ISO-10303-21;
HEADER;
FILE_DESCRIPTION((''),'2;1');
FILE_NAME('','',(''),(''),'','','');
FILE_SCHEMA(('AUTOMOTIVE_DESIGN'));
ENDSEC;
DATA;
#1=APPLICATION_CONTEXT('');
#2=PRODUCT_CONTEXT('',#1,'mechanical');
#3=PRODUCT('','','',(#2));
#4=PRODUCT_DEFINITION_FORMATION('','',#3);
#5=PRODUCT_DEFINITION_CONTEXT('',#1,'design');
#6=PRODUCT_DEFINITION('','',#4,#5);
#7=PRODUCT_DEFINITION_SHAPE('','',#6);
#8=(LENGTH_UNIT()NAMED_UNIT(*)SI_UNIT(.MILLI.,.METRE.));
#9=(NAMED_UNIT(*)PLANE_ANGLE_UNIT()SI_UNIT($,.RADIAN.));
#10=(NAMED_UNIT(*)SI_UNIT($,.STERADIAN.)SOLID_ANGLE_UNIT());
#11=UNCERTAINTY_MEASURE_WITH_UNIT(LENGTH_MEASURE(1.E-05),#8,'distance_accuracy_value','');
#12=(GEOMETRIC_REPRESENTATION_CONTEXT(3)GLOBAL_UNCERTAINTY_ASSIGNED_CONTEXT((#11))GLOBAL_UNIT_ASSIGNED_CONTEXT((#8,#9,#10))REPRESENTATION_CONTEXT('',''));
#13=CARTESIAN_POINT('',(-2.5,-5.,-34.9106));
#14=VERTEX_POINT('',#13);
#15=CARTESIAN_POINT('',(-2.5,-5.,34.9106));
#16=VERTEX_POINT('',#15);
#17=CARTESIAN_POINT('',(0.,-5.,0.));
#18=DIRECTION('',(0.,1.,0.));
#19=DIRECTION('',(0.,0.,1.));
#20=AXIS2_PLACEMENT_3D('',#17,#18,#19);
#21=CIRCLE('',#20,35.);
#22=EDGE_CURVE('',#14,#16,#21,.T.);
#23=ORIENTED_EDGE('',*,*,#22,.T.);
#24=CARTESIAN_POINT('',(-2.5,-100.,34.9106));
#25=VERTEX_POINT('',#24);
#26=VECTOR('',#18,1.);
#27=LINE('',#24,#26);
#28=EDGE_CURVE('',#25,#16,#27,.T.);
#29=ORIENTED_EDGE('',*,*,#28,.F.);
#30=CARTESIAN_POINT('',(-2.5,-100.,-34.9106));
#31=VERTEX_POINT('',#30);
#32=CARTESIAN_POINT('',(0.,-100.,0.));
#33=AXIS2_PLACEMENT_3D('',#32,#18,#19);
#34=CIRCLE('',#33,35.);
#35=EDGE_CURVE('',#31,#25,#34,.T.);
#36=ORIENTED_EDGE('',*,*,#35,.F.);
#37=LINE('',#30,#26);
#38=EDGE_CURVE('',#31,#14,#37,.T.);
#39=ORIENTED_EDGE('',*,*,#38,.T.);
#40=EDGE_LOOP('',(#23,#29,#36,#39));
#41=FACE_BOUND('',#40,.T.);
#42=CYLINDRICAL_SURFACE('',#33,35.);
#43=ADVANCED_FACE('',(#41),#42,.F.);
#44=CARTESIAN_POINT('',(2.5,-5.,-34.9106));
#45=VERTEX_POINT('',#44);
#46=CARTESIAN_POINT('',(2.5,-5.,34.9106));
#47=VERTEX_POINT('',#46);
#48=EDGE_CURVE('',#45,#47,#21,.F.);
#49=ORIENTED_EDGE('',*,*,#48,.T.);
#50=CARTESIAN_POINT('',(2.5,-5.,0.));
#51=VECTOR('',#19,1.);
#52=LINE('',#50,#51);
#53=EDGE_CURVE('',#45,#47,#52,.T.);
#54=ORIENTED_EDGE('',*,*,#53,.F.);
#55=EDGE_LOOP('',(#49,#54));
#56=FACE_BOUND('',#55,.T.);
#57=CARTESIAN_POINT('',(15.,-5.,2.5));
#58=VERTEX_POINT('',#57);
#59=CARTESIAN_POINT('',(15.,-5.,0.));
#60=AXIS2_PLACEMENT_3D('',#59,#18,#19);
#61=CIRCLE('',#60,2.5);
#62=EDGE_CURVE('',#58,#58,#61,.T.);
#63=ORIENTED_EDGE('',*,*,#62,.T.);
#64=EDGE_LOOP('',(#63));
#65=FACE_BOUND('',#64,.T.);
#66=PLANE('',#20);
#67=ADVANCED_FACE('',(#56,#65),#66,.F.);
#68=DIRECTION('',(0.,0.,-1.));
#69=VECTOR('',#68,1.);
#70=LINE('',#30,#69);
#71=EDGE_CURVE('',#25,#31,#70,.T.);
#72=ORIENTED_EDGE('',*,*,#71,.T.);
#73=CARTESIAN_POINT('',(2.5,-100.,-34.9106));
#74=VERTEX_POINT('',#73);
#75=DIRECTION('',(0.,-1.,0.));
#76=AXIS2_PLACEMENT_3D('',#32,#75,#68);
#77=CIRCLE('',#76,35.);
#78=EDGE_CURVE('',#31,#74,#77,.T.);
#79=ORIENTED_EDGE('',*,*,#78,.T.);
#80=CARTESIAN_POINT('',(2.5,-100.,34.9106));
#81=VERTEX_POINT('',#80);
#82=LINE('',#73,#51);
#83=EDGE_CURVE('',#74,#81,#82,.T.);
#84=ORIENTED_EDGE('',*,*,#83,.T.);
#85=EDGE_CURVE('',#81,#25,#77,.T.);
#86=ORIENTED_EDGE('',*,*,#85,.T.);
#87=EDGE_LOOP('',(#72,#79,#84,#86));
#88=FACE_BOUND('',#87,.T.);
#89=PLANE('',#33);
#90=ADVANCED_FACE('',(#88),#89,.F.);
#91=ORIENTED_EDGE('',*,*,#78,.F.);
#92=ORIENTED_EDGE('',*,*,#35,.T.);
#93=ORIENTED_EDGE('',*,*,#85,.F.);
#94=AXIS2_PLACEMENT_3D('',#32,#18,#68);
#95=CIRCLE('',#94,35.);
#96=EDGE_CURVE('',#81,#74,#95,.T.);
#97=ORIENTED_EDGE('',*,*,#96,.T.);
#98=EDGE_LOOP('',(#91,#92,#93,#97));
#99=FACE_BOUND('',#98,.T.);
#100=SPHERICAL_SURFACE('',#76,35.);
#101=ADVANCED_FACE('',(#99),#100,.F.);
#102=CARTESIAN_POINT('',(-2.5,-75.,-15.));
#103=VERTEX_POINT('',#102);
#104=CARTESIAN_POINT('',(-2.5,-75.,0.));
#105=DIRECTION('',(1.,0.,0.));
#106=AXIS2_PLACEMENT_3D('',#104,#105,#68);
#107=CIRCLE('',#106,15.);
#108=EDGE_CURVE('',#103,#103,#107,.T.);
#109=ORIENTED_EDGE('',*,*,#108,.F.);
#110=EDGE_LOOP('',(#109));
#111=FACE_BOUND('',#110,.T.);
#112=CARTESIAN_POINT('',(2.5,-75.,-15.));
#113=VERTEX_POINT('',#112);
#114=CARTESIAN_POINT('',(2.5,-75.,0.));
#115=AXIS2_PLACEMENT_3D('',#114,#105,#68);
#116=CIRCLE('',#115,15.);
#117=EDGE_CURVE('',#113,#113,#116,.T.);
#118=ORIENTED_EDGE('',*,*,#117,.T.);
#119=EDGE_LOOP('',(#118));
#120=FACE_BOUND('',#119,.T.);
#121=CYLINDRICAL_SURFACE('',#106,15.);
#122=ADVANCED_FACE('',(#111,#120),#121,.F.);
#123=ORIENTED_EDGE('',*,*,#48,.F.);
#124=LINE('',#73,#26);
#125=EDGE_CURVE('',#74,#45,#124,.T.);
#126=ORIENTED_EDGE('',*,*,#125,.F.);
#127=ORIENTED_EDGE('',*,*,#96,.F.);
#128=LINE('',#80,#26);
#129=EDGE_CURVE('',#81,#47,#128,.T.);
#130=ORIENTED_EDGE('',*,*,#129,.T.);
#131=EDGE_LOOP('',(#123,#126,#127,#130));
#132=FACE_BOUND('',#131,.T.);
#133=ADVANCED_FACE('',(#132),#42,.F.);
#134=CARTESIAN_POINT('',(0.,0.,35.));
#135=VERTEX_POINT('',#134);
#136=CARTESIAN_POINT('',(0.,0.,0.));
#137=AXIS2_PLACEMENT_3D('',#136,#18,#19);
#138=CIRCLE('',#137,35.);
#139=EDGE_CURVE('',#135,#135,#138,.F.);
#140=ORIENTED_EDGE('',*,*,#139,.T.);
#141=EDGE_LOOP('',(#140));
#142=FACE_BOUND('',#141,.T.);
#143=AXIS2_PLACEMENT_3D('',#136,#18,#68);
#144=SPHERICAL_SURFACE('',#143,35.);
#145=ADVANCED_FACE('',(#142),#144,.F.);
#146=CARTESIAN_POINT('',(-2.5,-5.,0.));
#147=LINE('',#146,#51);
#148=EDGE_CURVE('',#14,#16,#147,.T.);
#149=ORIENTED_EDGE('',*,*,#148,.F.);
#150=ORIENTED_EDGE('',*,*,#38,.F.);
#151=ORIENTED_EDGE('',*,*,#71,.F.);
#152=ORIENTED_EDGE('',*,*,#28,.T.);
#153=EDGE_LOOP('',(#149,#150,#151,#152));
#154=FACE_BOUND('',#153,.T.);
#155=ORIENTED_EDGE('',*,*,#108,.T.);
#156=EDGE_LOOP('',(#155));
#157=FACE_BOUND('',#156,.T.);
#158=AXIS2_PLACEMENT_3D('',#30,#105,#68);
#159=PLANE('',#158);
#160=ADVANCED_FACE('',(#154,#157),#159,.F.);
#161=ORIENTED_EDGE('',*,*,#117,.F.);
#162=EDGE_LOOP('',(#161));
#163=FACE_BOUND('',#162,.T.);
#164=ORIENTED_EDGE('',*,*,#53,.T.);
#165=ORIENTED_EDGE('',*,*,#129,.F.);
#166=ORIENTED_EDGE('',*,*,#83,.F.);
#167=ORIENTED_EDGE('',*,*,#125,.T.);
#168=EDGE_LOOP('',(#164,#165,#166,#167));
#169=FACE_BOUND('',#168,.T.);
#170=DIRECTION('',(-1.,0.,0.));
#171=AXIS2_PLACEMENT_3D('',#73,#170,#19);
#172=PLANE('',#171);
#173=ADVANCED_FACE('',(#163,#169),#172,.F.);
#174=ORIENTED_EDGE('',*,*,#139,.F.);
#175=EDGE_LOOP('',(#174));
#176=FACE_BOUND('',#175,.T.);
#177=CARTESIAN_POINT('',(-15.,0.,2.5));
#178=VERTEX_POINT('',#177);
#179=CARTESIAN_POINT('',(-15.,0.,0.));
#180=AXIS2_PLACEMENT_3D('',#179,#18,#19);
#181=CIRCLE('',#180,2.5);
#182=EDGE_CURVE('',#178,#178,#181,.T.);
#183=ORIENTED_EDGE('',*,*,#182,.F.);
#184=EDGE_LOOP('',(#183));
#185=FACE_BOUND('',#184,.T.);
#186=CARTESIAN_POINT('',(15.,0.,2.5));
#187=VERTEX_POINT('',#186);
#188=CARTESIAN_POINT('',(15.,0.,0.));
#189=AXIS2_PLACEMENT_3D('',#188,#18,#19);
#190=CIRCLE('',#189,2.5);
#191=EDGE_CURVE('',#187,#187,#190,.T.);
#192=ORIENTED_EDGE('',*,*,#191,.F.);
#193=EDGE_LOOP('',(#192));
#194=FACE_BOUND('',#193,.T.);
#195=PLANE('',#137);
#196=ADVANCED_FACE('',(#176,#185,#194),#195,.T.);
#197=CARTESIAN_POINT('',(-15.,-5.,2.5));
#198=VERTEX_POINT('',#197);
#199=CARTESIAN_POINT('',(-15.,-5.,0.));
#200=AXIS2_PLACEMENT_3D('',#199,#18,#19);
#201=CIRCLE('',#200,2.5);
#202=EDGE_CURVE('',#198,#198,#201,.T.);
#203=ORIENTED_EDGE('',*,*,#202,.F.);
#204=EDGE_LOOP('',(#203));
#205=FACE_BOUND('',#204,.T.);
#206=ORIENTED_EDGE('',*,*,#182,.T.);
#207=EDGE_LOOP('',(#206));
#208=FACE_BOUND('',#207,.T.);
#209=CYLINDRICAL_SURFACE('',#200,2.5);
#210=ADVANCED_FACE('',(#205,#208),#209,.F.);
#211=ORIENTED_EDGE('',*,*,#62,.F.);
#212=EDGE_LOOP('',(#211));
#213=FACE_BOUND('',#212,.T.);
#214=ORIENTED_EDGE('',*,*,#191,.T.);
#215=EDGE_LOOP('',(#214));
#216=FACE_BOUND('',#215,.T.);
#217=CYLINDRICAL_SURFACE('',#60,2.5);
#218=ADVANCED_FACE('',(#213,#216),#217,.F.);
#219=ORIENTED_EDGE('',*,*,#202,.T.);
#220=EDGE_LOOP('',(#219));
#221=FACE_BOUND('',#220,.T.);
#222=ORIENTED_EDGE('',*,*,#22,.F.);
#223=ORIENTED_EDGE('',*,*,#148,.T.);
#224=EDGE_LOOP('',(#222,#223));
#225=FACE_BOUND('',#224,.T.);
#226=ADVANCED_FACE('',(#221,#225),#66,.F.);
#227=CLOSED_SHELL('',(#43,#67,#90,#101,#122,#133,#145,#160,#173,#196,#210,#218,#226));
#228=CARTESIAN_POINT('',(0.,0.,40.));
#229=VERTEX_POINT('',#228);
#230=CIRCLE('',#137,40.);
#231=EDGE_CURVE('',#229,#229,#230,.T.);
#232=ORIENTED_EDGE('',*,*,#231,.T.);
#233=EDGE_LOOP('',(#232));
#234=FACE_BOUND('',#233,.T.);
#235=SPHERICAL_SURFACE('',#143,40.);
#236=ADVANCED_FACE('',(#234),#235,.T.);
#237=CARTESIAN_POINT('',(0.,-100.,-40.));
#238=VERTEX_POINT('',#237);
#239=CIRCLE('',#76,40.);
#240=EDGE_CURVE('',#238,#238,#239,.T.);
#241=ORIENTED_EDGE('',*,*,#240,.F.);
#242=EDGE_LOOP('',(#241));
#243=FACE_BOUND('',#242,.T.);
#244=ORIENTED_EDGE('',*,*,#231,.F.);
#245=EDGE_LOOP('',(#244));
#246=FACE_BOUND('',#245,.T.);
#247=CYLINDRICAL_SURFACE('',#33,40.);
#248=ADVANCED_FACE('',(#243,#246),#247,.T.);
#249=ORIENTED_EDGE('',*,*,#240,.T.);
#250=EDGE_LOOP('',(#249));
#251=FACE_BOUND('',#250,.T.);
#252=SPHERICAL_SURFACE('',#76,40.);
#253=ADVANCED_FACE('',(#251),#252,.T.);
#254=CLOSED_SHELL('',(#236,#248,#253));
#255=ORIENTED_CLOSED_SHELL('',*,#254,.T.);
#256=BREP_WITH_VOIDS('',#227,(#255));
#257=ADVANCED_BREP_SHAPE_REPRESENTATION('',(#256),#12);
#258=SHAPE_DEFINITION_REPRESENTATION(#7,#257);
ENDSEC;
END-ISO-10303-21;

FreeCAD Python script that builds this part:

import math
import FreeCAD as App
import Part
import Sketcher

doc = App.newDocument("Part")
body = doc.addObject("PartDesign::Body", "Body")

sketch1 = body.newObject("Sketcher::SketchObject", "Sketch")
sketch1.AttachmentSupport = (doc.getObject("XZ_Plane"), [""])
sketch1.MapMode = "FlatFace"
sketch1.addGeometry([
    Part.Circle(App.Vector(0, 0, 0), App.Vector(0, 0, 1), 40),
    Part.ArcOfCircle(Part.Circle(App.Vector(0, 0, 0), App.Vector(0, 0, 1), 35), math.radians(94), math.radians(266)),
    Part.LineSegment(App.Vector(-2, -35, 0), App.Vector(-2, 35, 0)),
    Part.LineSegment(App.Vector(2, 35, 0), App.Vector(2, -35, 0)),
    Part.ArcOfCircle(Part.Circle(App.Vector(0, 0, 0), App.Vector(0, 0, 1), 35), math.radians(-86), math.radians(86)),
], False)
sketch1.addConstraint([
    Sketcher.Constraint("Coincident", 1, 1, 2, 2),
    Sketcher.Constraint("Coincident", 2, 1, 1, 2),
    Sketcher.Constraint("Coincident", 3, 1, 4, 2),
    Sketcher.Constraint("Coincident", 4, 1, 3, 2),
    Sketcher.Constraint("Vertical", 2),
    Sketcher.Constraint("Vertical", 3),
    Sketcher.Constraint("Coincident", 0, 3, -1, 1),
    Sketcher.Constraint("Coincident", 1, 3, -1, 1),
    Sketcher.Constraint("Coincident", 4, 3, -1, 1),
    Sketcher.Constraint("Equal", 1, 4),
    Sketcher.Constraint("Horizontal", 1, 1, 3, 1),
    Sketcher.Constraint("Diameter", 0, 80.0),
    Sketcher.Constraint("Radius", 1, 35.0),
    Sketcher.Constraint("DistanceX", 1, 1, 3, 1, 5.0),
])
pad1 = body.newObject("PartDesign::Pad", "Pad")
pad1.Profile = sketch1
pad1.Length = 100

sketch2 = body.newObject("Sketcher::SketchObject", "Sketch001")
sketch2.AttachmentSupport = (doc.getObject("YZ_Plane"), [""])
sketch2.MapMode = "FlatFace"
sketch2.AttachmentOffset = App.Placement(App.Vector(0, 0, 2.5), App.Rotation())
sketch2.addGeometry(Part.Circle(App.Vector(-75, 0, 0), App.Vector(0, 0, 1), 15), False)
sketch2.addConstraint([
    Sketcher.Constraint("PointOnObject", 0, 3, -1),
    Sketcher.Constraint("Diameter", 0, 30.0),
    Sketcher.Constraint("DistanceX", 0, 3, -1, 1, 75.0),
])
pocket1 = body.newObject("PartDesign::Pocket", "Pocket")
pocket1.Profile = sketch2
pocket1.Length = 5

sketch3 = body.newObject("Sketcher::SketchObject", "Sketch002")
sketch3.AttachmentSupport = (doc.getObject("YZ_Plane"), [""])
sketch3.MapMode = "FlatFace"
sketch3.addGeometry([
    Part.LineSegment(App.Vector(-100, -40, 0), App.Vector(-100, -35, 0)),
    Part.ArcOfCircle(Part.Circle(App.Vector(-100, 0, 0), App.Vector(0, 0, 1), 35), math.radians(180), math.radians(270)),
    Part.LineSegment(App.Vector(-135, 0, 0), App.Vector(-140, 0, 0)),
    Part.ArcOfCircle(Part.Circle(App.Vector(-100, 0, 0), App.Vector(0, 0, 1), 40), math.radians(-180), math.radians(-90)),
], False)
sketch3.addConstraint([
    Sketcher.Constraint("Coincident", 0, 2, 1, 2),
    Sketcher.Constraint("Coincident", 1, 1, 2, 1),
    Sketcher.Constraint("Coincident", 2, 2, 3, 1),
    Sketcher.Constraint("Coincident", 3, 2, 0, 1),
    Sketcher.Constraint("Vertical", 0),
    Sketcher.Constraint("Horizontal", 2),
    Sketcher.Constraint("Coincident", 3, 3, 1, 3),
    Sketcher.Constraint("PointOnObject", 1, 3, -1),
    Sketcher.Constraint("PointOnObject", 1, 1, -1),
    Sketcher.Constraint("Vertical", 3, 3, 0, 2),
    Sketcher.Constraint("Radius", 1, 35.0),
    Sketcher.Constraint("Radius", 3, 40.0),
    Sketcher.Constraint("DistanceX", 1, 3, -1, 1, 100.0),
])
revolution = body.newObject("PartDesign::Revolution", "Revolution")
revolution.Profile = sketch3
revolution.ReferenceAxis = (sketch3, ["H_Axis"])
revolution.Angle = 360

sketch4 = body.newObject("Sketcher::SketchObject", "Sketch003")
sketch4.AttachmentSupport = (doc.getObject("XZ_Plane"), [""])
sketch4.MapMode = "FlatFace"
sketch4.addGeometry([
    Part.LineSegment(App.Vector(-2, 35, 0), App.Vector(-2, -35, 0)),
    Part.ArcOfCircle(Part.Circle(App.Vector(0, 0, 0), App.Vector(0, 0, 1), 35), math.radians(94), math.radians(266)),
    Part.ArcOfCircle(Part.Circle(App.Vector(0, 0, 0), App.Vector(0, 0, 1), 35), math.radians(-86), math.radians(86)),
    Part.LineSegment(App.Vector(2, -35, 0), App.Vector(2, 35, 0)),
], False)
sketch4.addConstraint([
    Sketcher.Constraint("Coincident", 0, 1, 1, 1),
    Sketcher.Constraint("Coincident", 1, 2, 0, 2),
    Sketcher.Constraint("Coincident", 2, 1, 3, 1),
    Sketcher.Constraint("Coincident", 3, 2, 2, 2),
    Sketcher.Constraint("Vertical", 0),
    Sketcher.Constraint("Vertical", 3),
    Sketcher.Constraint("Coincident", 1, 3, -1, 1),
    Sketcher.Constraint("Coincident", 2, 3, -1, 1),
    Sketcher.Constraint("Equal", 1, 2),
    Sketcher.Constraint("Horizontal", 1, 2, 2, 1),
    Sketcher.Constraint("Radius", 1, 35.0),
    Sketcher.Constraint("DistanceX", 1, 2, 2, 1, 5.0),
])
pad2 = body.newObject("PartDesign::Pad", "Pad001")
pad2.Profile = sketch4
pad2.Length = 5

sketch5 = body.newObject("Sketcher::SketchObject", "Sketch004")
sketch5.AttachmentSupport = (doc.getObject("XZ_Plane"), [""])
sketch5.MapMode = "FlatFace"
sketch5.addGeometry([
    Part.Circle(App.Vector(-15, 0, 0), App.Vector(0, 0, 1), 2.5),
    Part.Circle(App.Vector(15, 0, 0), App.Vector(0, 0, 1), 2.5),
], False)
sketch5.addConstraint([
    Sketcher.Constraint("Equal", 0, 1),
    Sketcher.Constraint("Symmetric", 0, 3, 1, 3, -1, 1),
    Sketcher.Constraint("PointOnObject", 0, 3, -1),
    Sketcher.Constraint("Diameter", 0, 5.0),
    Sketcher.Constraint("DistanceX", 0, 3, -1, 1, 15.0),
])
pocket2 = body.newObject("PartDesign::Pocket", "Pocket001")
pocket2.Profile = sketch5
pocket2.Length = 5
pocket2.Reversed = True
doc.recompute()

datumplane = body.newObject("PartDesign::Plane", "DatumPlane")
datumplane.AttachmentSupport = (doc.getObject("XZ_Plane"), [""])
datumplane.MapMode = "FlatFace"
datumplane.AttachmentOffset = App.Placement(App.Vector(0, 0, 50), App.Rotation())
mirrored = body.newObject("PartDesign::Mirrored", "Mirrored")
mirrored.Originals = [revolution]
mirrored.MirrorPlane = (datumplane, [""])
body.Tip = mirrored

doc.recompute()
